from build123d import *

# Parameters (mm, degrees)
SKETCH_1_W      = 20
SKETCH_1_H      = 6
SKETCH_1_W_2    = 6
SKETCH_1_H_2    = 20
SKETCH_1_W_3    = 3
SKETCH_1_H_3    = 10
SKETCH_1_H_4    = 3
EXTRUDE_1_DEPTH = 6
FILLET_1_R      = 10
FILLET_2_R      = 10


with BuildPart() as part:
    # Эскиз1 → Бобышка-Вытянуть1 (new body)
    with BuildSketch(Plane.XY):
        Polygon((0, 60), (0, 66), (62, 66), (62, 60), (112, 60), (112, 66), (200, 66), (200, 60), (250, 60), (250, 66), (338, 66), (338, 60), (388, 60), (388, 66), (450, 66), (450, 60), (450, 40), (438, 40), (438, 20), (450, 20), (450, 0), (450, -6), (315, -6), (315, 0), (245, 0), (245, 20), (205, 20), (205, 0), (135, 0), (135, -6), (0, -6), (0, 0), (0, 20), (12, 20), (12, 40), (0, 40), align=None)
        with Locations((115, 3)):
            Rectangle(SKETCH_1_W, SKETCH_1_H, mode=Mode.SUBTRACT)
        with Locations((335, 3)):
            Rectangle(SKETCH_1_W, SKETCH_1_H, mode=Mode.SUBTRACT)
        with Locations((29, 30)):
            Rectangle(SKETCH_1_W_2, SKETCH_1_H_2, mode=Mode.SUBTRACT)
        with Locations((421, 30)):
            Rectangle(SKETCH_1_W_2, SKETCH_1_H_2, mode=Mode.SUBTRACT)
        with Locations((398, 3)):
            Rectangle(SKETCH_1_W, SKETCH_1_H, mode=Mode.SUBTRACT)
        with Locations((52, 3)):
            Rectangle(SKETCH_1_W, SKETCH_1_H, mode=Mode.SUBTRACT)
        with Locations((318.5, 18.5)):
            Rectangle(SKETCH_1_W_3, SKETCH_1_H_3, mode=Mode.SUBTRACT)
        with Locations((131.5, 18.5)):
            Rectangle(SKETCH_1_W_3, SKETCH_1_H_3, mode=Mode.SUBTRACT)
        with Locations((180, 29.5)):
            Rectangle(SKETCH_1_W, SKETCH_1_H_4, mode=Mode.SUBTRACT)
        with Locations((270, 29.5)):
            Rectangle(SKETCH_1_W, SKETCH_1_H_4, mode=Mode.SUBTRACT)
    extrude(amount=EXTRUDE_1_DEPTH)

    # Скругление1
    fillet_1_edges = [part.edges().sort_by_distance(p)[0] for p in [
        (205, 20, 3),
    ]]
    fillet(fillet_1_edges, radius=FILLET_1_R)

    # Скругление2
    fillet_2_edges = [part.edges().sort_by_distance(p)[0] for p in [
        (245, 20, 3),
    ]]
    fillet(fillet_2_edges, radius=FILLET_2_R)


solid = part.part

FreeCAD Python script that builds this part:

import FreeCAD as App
import Part
import Sketcher


def edges_at(feature, points):
    """Names of the edges that pass closest to the given points."""
    edges = feature.Shape.Edges
    near = lambda p: min(range(len(edges)), key=lambda i: edges[i].distToShape(Part.Vertex(*p))[0])
    return sorted({f"Edge{near(p) + 1}" for p in points})

doc = App.newDocument("Part")
body = doc.addObject("PartDesign::Body", "Body")

sketch1 = body.newObject("Sketcher::SketchObject", "Sketch")
sketch1.AttachmentSupport = (doc.getObject("XY_Plane"), [""])
sketch1.MapMode = "FlatFace"
sketch1.addGeometry([
    Part.LineSegment(App.Vector(0, 66, 0), App.Vector(0, 40, 0)),
    Part.LineSegment(App.Vector(0, 40, 0), App.Vector(12, 40, 0)),
    Part.LineSegment(App.Vector(12, 40, 0), App.Vector(12, 20, 0)),
    Part.LineSegment(App.Vector(12, 20, 0), App.Vector(0, 20, 0)),
    Part.LineSegment(App.Vector(0, 20, 0), App.Vector(0, -6, 0)),
    Part.LineSegment(App.Vector(0, -6, 0), App.Vector(135, -6, 0)),
    Part.LineSegment(App.Vector(135, -6, 0), App.Vector(135, 0, 0)),
    Part.LineSegment(App.Vector(135, 0, 0), App.Vector(205, 0, 0)),
    Part.LineSegment(App.Vector(205, 0, 0), App.Vector(205, 20, 0)),
    Part.LineSegment(App.Vector(205, 20, 0), App.Vector(245, 20, 0)),
    Part.LineSegment(App.Vector(245, 20, 0), App.Vector(245, 0, 0)),
    Part.LineSegment(App.Vector(245, 0, 0), App.Vector(315, 0, 0)),
    Part.LineSegment(App.Vector(315, 0, 0), App.Vector(315, -6, 0)),
    Part.LineSegment(App.Vector(315, -6, 0), App.Vector(450, -6, 0)),
    Part.LineSegment(App.Vector(450, -6, 0), App.Vector(450, 20, 0)),
    Part.LineSegment(App.Vector(450, 20, 0), App.Vector(438, 20, 0)),
    Part.LineSegment(App.Vector(438, 20, 0), App.Vector(438, 40, 0)),
    Part.LineSegment(App.Vector(438, 40, 0), App.Vector(450, 40, 0)),
    Part.LineSegment(App.Vector(450, 40, 0), App.Vector(450, 66, 0)),
    Part.LineSegment(App.Vector(450, 66, 0), App.Vector(388, 66, 0)),
    Part.LineSegment(App.Vector(388, 66, 0), App.Vector(388, 60, 0)),
    Part.LineSegment(App.Vector(388, 60, 0), App.Vector(338, 60, 0)),
    Part.LineSegment(App.Vector(338, 60, 0), App.Vector(338, 66, 0)),
    Part.LineSegment(App.Vector(338, 66, 0), App.Vector(250, 66, 0)),
    Part.LineSegment(App.Vector(250, 66, 0), App.Vector(250, 60, 0)),
    Part.LineSegment(App.Vector(250, 60, 0), App.Vector(200, 60, 0)),
    Part.LineSegment(App.Vector(200, 60, 0), App.Vector(200, 66, 0)),
    Part.LineSegment(App.Vector(200, 66, 0), App.Vector(112, 66, 0)),
    Part.LineSegment(App.Vector(112, 66, 0), App.Vector(112, 60, 0)),
    Part.LineSegment(App.Vector(112, 60, 0), App.Vector(62, 60, 0)),
    Part.LineSegment(App.Vector(62, 60, 0), App.Vector(62, 66, 0)),
    Part.LineSegment(App.Vector(62, 66, 0), App.Vector(0, 66, 0)),
    Part.LineSegment(App.Vector(388, 0, 0), App.Vector(388, 6, 0)),
    Part.LineSegment(App.Vector(388, 6, 0), App.Vector(408, 6, 0)),
    Part.LineSegment(App.Vector(408, 6, 0), App.Vector(408, 0, 0)),
    Part.LineSegment(App.Vector(408, 0, 0), App.Vector(388, 0, 0)),
    Part.LineSegment(App.Vector(325, 0, 0), App.Vector(325, 6, 0)),
    Part.LineSegment(App.Vector(325, 6, 0), App.Vector(345, 6, 0)),
    Part.LineSegment(App.Vector(345, 6, 0), App.Vector(345, 0, 0)),
    Part.LineSegment(App.Vector(345, 0, 0), App.Vector(325, 0, 0)),
    Part.LineSegment(App.Vector(317, 13.5, 0), App.Vector(317, 23.5, 0)),
    Part.LineSegment(App.Vector(317, 23.5, 0), App.Vector(320, 23.5, 0)),
    Part.LineSegment(App.Vector(320, 23.5, 0), App.Vector(320, 13.5, 0)),
    Part.LineSegment(App.Vector(320, 13.5, 0), App.Vector(317, 13.5, 0)),
    Part.LineSegment(App.Vector(105, 0, 0), App.Vector(105, 6, 0)),
    Part.LineSegment(App.Vector(105, 6, 0), App.Vector(125, 6, 0)),
    Part.LineSegment(App.Vector(125, 6, 0), App.Vector(125, 0, 0)),
    Part.LineSegment(App.Vector(125, 0, 0), App.Vector(105, 0, 0)),
    Part.LineSegment(App.Vector(42, 0, 0), App.Vector(42, 6, 0)),
    Part.LineSegment(App.Vector(42, 6, 0), App.Vector(62, 6, 0)),
    Part.LineSegment(App.Vector(62, 6, 0), App.Vector(62, 0, 0)),
    Part.LineSegment(App.Vector(62, 0, 0), App.Vector(42, 0, 0)),
    Part.LineSegment(App.Vector(130, 13.5, 0), App.Vector(130, 23.5, 0)),
    Part.LineSegment(App.Vector(130, 23.5, 0), App.Vector(133, 23.5, 0)),
    Part.LineSegment(App.Vector(133, 23.5, 0), App.Vector(133, 13.5, 0)),
    Part.LineSegment(App.Vector(133, 13.5, 0), App.Vector(130, 13.5, 0)),
    Part.LineSegment(App.Vector(260, 28, 0), App.Vector(260, 31, 0)),
    Part.LineSegment(App.Vector(260, 31, 0), App.Vector(280, 31, 0)),
    Part.LineSegment(App.Vector(280, 31, 0), App.Vector(280, 28, 0)),
    Part.LineSegment(App.Vector(280, 28, 0), App.Vector(260, 28, 0)),
    Part.LineSegment(App.Vector(418, 20, 0), App.Vector(418, 40, 0)),
    Part.LineSegment(App.Vector(418, 40, 0), App.Vector(424, 40, 0)),
    Part.LineSegment(App.Vector(424, 40, 0), App.Vector(424, 20, 0)),
    Part.LineSegment(App.Vector(424, 20, 0), App.Vector(418, 20, 0)),
    Part.LineSegment(App.Vector(170, 28, 0), App.Vector(170, 31, 0)),
    Part.LineSegment(App.Vector(170, 31, 0), App.Vector(190, 31, 0)),
    Part.LineSegment(App.Vector(190, 31, 0), App.Vector(190, 28, 0)),
    Part.LineSegment(App.Vector(190, 28, 0), App.Vector(170, 28, 0)),
    Part.LineSegment(App.Vector(26, 20, 0), App.Vector(26, 40, 0)),
    Part.LineSegment(App.Vector(26, 40, 0), App.Vector(32, 40, 0)),
    Part.LineSegment(App.Vector(32, 40, 0), App.Vector(32, 20, 0)),
    Part.LineSegment(App.Vector(32, 20, 0), App.Vector(26, 20, 0)),
], False)
sketch1.addConstraint([
    Sketcher.Constraint("Coincident", 0, 2, 1, 1),
    Sketcher.Constraint("Coincident", 1, 2, 2, 1),
    Sketcher.Constraint("Coincident", 2, 2, 3, 1),
    Sketcher.Constraint("Coincident", 3, 2, 4, 1),
    Sketcher.Constraint("Coincident", 4, 2, 5, 1),
    Sketcher.Constraint("Coincident", 5, 2, 6, 1),
    Sketcher.Constraint("Coincident", 6, 2, 7, 1),
    Sketcher.Constraint("Coincident", 7, 2, 8, 1),
    Sketcher.Constraint("Coincident", 8, 2, 9, 1),
    Sketcher.Constraint("Coincident", 9, 2, 10, 1),
    Sketcher.Constraint("Coincident", 10, 2, 11, 1),
    Sketcher.Constraint("Coincident", 11, 2, 12, 1),
    Sketcher.Constraint("Coincident", 12, 2, 13, 1),
    Sketcher.Constraint("Coincident", 13, 2, 14, 1),
    Sketcher.Constraint("Coincident", 14, 2, 15, 1),
    Sketcher.Constraint("Coincident", 15, 2, 16, 1),
    Sketcher.Constraint("Coincident", 16, 2, 17, 1),
    Sketcher.Constraint("Coincident", 17, 2, 18, 1),
    Sketcher.Constraint("Coincident", 18, 2, 19, 1),
    Sketcher.Constraint("Coincident", 19, 2, 20, 1),
    Sketcher.Constraint("Coincident", 20, 2, 21, 1),
    Sketcher.Constraint("Coincident", 21, 2, 22, 1),
    Sketcher.Constraint("Coincident", 22, 2, 23, 1),
    Sketcher.Constraint("Coincident", 23, 2, 24, 1),
    Sketcher.Constraint("Coincident", 24, 2, 25, 1),
    Sketcher.Constraint("Coincident", 25, 2, 26, 1),
    Sketcher.Constraint("Coincident", 26, 2, 27, 1),
    Sketcher.Constraint("Coincident", 27, 2, 28, 1),
    Sketcher.Constraint("Coincident", 28, 2, 29, 1),
    Sketcher.Constraint("Coincident", 29, 2, 30, 1),
    Sketcher.Constraint("Coincident", 30, 2, 31, 1),
    Sketcher.Constraint("Coincident", 31, 2, 0, 1),
    Sketcher.Constraint("Coincident", 32, 2, 33, 1),
    Sketcher.Constraint("Coincident", 33, 2, 34, 1),
    Sketcher.Constraint("Coincident", 34, 2, 35, 1),
    Sketcher.Constraint("Coincident", 35, 2, 32, 1),
    Sketcher.Constraint("Coincident", 36, 2, 37, 1),
    Sketcher.Constraint("Coincident", 37, 2, 38, 1),
    Sketcher.Constraint("Coincident", 38, 2, 39, 1),
    Sketcher.Constraint("Coincident", 39, 2, 36, 1),
    Sketcher.Constraint("Coincident", 40, 2, 41, 1),
    Sketcher.Constraint("Coincident", 41, 2, 42, 1),
    Sketcher.Constraint("Coincident", 42, 2, 43, 1),
    Sketcher.Constraint("Coincident", 43, 2, 40, 1),
    Sketcher.Constraint("Coincident", 44, 2, 45, 1),
    Sketcher.Constraint("Coincident", 45, 2, 46, 1),
    Sketcher.Constraint("Coincident", 46, 2, 47, 1),
    Sketcher.Constraint("Coincident", 47, 2, 44, 1),
    Sketcher.Constraint("Coincident", 48, 2, 49, 1),
    Sketcher.Constraint("Coincident", 49, 2, 50, 1),
    Sketcher.Constraint("Coincident", 50, 2, 51, 1),
    Sketcher.Constraint("Coincident", 51, 2, 48, 1),
    Sketcher.Constraint("Coincident", 52, 2, 53, 1),
    Sketcher.Constraint("Coincident", 53, 2, 54, 1),
    Sketcher.Constraint("Coincident", 54, 2, 55, 1),
    Sketcher.Constraint("Coincident", 55, 2, 52, 1),
    Sketcher.Constraint("Coincident", 56, 2, 57, 1),
    Sketcher.Constraint("Coincident", 57, 2, 58, 1),
    Sketcher.Constraint("Coincident", 58, 2, 59, 1),
    Sketcher.Constraint("Coincident", 59, 2, 56, 1),
    Sketcher.Constraint("Coincident", 60, 2, 61, 1),
    Sketcher.Constraint("Coincident", 61, 2, 62, 1),
    Sketcher.Constraint("Coincident", 62, 2, 63, 1),
    Sketcher.Constraint("Coincident", 63, 2, 60, 1),
    Sketcher.Constraint("Coincident", 64, 2, 65, 1),
    Sketcher.Constraint("Coincident", 65, 2, 66, 1),
    Sketcher.Constraint("Coincident", 66, 2, 67, 1),
    Sketcher.Constraint("Coincident", 67, 2, 64, 1),
    Sketcher.Constraint("Coincident", 68, 2, 69, 1),
    Sketcher.Constraint("Coincident", 69, 2, 70, 1),
    Sketcher.Constraint("Coincident", 70, 2, 71, 1),
    Sketcher.Constraint("Coincident", 71, 2, 68, 1),
    Sketcher.Constraint("Vertical", 0),
    Sketcher.Constraint("Horizontal", 1),
    Sketcher.Constraint("Vertical", 2),
    Sketcher.Constraint("Horizontal", 3),
    Sketcher.Constraint("Vertical", 4),
    Sketcher.Constraint("Horizontal", 5),
    Sketcher.Constraint("Vertical", 6),
    Sketcher.Constraint("Horizontal", 7),
    Sketcher.Constraint("Vertical", 8),
    Sketcher.Constraint("Horizontal", 9),
    Sketcher.Constraint("Vertical", 10),
    Sketcher.Constraint("Horizontal", 11),
    Sketcher.Constraint("Vertical", 12),
    Sketcher.Constraint("Horizontal", 13),
    Sketcher.Constraint("Vertical", 14),
    Sketcher.Constraint("Horizontal", 15),
    Sketcher.Constraint("Vertical", 16),
    Sketcher.Constraint("Horizontal", 17),
    Sketcher.Constraint("Vertical", 18),
    Sketcher.Constraint("Horizontal", 19),
    Sketcher.Constraint("Vertical", 20),
    Sketcher.Constraint("Horizontal", 21),
    Sketcher.Constraint("Vertical", 22),
    Sketcher.Constraint("Horizontal", 23),
    Sketcher.Constraint("Vertical", 24),
    Sketcher.Constraint("Horizontal", 25),
    Sketcher.Constraint("Vertical", 26),
    Sketcher.Constraint("Horizontal", 27),
    Sketcher.Constraint("Vertical", 28),
    Sketcher.Constraint("Horizontal", 29),
    Sketcher.Constraint("Vertical", 30),
    Sketcher.Constraint("Horizontal", 31),
    Sketcher.Constraint("Vertical", 32),
    Sketcher.Constraint("Horizontal", 33),
    Sketcher.Constraint("Vertical", 34),
    Sketcher.Constraint("Horizontal", 35),
    Sketcher.Constraint("Vertical", 36),
    Sketcher.Constraint("Horizontal", 37),
    Sketcher.Constraint("Vertical", 38),
    Sketcher.Constraint("Horizontal", 39),
    Sketcher.Constraint("Vertical", 40),
    Sketcher.Constraint("Horizontal", 41),
    Sketcher.Constraint("Vertical", 42),
    Sketcher.Constraint("Horizontal", 43),
    Sketcher.Constraint("Vertical", 44),
    Sketcher.Constraint("Horizontal", 45),
    Sketcher.Constraint("Vertical", 46),
    Sketcher.Constraint("Horizontal", 47),
    Sketcher.Constraint("Vertical", 48),
    Sketcher.Constraint("Horizontal", 49),
    Sketcher.Constraint("Vertical", 50),
    Sketcher.Constraint("Horizontal", 51),
    Sketcher.Constraint("Vertical", 52),
    Sketcher.Constraint("Horizontal", 53),
    Sketcher.Constraint("Vertical", 54),
    Sketcher.Constraint("Horizontal", 55),
    Sketcher.Constraint("Vertical", 56),
    Sketcher.Constraint("Horizontal", 57),
    Sketcher.Constraint("Vertical", 58),
    Sketcher.Constraint("Horizontal", 59),
    Sketcher.Constraint("Vertical", 60),
    Sketcher.Constraint("Horizontal", 61),
    Sketcher.Constraint("Vertical", 62),
    Sketcher.Constraint("Horizontal", 63),
    Sketcher.Constraint("Vertical", 64),
    Sketcher.Constraint("Horizontal", 65),
    Sketcher.Constraint("Vertical", 66),
    Sketcher.Constraint("Horizontal", 67),
    Sketcher.Constraint("Vertical", 68),
    Sketcher.Constraint("Horizontal", 69),
    Sketcher.Constraint("Vertical", 70),
    Sketcher.Constraint("Horizontal", 71),
    Sketcher.Constraint("PointOnObject", 0, 2, -2),
    Sketcher.Constraint("PointOnObject", 3, 2, -2),
    Sketcher.Constraint("PointOnObject", 6, 2, -1),
    Sketcher.Constraint("PointOnObject", 10, 2, -1),
    Sketcher.Constraint("PointOnObject", 34, 2, -1),
    Sketcher.Constraint("PointOnObject", 38, 2, -1),
    Sketcher.Constraint("PointOnObject", 46, 2, -1),
    Sketcher.Constraint("PointOnObject", 50, 2, -1),
    Sketcher.Constraint("Horizontal", 3, 2, 8, 2),
    Sketcher.Constraint("Horizontal", 5, 2, 12, 2),
    Sketcher.Constraint("Horizontal", 9, 2, 14, 2),
    Sketcher.Constraint("Horizontal", 1, 2, 16, 2),
    Sketcher.Constraint("Horizontal", 19, 2, 22, 2),
    Sketcher.Constraint("Horizontal", 21, 2, 24, 2),
    Sketcher.Constraint("Horizontal", 23, 2, 26, 2),
    Sketcher.Constraint("Horizontal", 25, 2, 28, 2),
    Sketcher.Constraint("Horizontal", 27, 2, 30, 2),
    Sketcher.Constraint("Horizontal", 33, 2, 36, 2),
    Sketcher.Constraint("Horizontal", 37, 2, 44, 2),
    Sketcher.Constraint("Horizontal", 45, 2, 48, 2),
    Sketcher.Constraint("Horizontal", 41, 2, 52, 2),
    Sketcher.Constraint("Horizontal", 43, 2, 54, 2),
    Sketcher.Constraint("Horizontal", 17, 2, 60, 2),
    Sketcher.Constraint("Horizontal", 15, 2, 62, 2),
    Sketcher.Constraint("Horizontal", 57, 2, 64, 2),
    Sketcher.Constraint("Horizontal", 59, 2, 66, 2),
    Sketcher.Constraint("Horizontal", 61, 2, 68, 2),
    Sketcher.Constraint("Horizontal", 63, 2, 70, 2),
    Sketcher.Constraint("Vertical", 14, 2, 17, 2),
    Sketcher.Constraint("Vertical", 20, 2, 32, 2),
    Sketcher.Constraint("Vertical", 30, 2, 49, 2),
    Sketcher.Constraint("Equal", 7, 11),
    Sketcher.Constraint("Equal", 5, 13),
    Sketcher.Constraint("Equal", 3, 15),
    Sketcher.Constraint("Equal", 21, 25),
    Sketcher.Constraint("Equal", 23, 27),
    Sketcher.Constraint("Equal", 25, 29),
    Sketcher.Constraint("Equal", 19, 31),
    Sketcher.Constraint("Equal", 35, 37),
    Sketcher.Constraint("Equal", 39, 45),
    Sketcher.Constraint("Equal", 47, 49),
    Sketcher.Constraint("Equal", 43, 53),
    Sketcher.Constraint("Equal", 51, 57),
    Sketcher.Constraint("Equal", 59, 65),
    Sketcher.Constraint("Equal", 63, 69),
    Sketcher.Constraint("Equal", 67, 2),
    Sketcher.Constraint("Equal", 0, 4),
    Sketcher.Constraint("Equal", 71, 6),
    Sketcher.Constraint("Equal", 2, 8),
    Sketcher.Constraint("Equal", 12, 20),
    Sketcher.Constraint("Equal", 30, 32),
    Sketcher.Constraint("Equal", 55, 56),
    Sketcher.Constraint("DistanceX", 1, 1, 1, 2, 12.0),
    Sketcher.Constraint("DistanceX", 5, 1, 5, 2, 135.0),
    Sketcher.Constraint("DistanceX", 7, 1, 7, 2, 70.0),
    Sketcher.Constraint("DistanceX", 9, 1, 9, 2, 40.0),
    Sketcher.Constraint("DistanceX", 19, 2, 19, 1, 62.0),
    Sketcher.Constraint("DistanceX", 21, 2, 21, 1, 50.0),
    Sketcher.Constraint("DistanceX", 33, 1, 33, 2, 20.0),
    Sketcher.Constraint("DistanceX", 41, 1, 41, 2, 3.0),
    Sketcher.Constraint("DistanceX", 61, 1, 61, 2, 6.0),
    Sketcher.Constraint("DistanceY", 40, 1, 40, 2, 10.0),
    Sketcher.Constraint("DistanceX", -1, 1, 36, 2, 325.0),
    Sketcher.Constraint("DistanceX", -1, 1, 40, 2, 317.0),
    Sketcher.Constraint("DistanceX", -1, 1, 44, 2, 105.0),
    Sketcher.Constraint("DistanceX", -1, 1, 52, 2, 130.0),
    Sketcher.Constraint("DistanceX", -1, 1, 56, 2, 260.0),
    Sketcher.Constraint("DistanceY", -1, 1, 56, 2, 31.0),
    Sketcher.Constraint("DistanceX", -1, 1, 60, 2, 418.0),
    Sketcher.Constraint("DistanceX", -1, 1, 64, 2, 170.0),
    Sketcher.Constraint("DistanceX", -1, 1, 68, 2, 26.0),
    Sketcher.Constraint("DistanceY", -1, 1, 40, 2, 23.5),
])
pad1 = body.newObject("PartDesign::Pad", "Pad")
pad1.Profile = sketch1
pad1.Length = 6
doc.recompute()

fillet = body.newObject("PartDesign::Fillet", "Fillet")
fillet.Base = (pad1, edges_at(pad1, [(205, 20, 3)]))
fillet.Radius = 10
doc.recompute()

fillet2 = body.newObject("PartDesign::Fillet", "Fillet001")
fillet2.Base = (fillet, edges_at(fillet, [(245, 20, 3)]))
fillet2.Radius = 10

doc.recompute()
